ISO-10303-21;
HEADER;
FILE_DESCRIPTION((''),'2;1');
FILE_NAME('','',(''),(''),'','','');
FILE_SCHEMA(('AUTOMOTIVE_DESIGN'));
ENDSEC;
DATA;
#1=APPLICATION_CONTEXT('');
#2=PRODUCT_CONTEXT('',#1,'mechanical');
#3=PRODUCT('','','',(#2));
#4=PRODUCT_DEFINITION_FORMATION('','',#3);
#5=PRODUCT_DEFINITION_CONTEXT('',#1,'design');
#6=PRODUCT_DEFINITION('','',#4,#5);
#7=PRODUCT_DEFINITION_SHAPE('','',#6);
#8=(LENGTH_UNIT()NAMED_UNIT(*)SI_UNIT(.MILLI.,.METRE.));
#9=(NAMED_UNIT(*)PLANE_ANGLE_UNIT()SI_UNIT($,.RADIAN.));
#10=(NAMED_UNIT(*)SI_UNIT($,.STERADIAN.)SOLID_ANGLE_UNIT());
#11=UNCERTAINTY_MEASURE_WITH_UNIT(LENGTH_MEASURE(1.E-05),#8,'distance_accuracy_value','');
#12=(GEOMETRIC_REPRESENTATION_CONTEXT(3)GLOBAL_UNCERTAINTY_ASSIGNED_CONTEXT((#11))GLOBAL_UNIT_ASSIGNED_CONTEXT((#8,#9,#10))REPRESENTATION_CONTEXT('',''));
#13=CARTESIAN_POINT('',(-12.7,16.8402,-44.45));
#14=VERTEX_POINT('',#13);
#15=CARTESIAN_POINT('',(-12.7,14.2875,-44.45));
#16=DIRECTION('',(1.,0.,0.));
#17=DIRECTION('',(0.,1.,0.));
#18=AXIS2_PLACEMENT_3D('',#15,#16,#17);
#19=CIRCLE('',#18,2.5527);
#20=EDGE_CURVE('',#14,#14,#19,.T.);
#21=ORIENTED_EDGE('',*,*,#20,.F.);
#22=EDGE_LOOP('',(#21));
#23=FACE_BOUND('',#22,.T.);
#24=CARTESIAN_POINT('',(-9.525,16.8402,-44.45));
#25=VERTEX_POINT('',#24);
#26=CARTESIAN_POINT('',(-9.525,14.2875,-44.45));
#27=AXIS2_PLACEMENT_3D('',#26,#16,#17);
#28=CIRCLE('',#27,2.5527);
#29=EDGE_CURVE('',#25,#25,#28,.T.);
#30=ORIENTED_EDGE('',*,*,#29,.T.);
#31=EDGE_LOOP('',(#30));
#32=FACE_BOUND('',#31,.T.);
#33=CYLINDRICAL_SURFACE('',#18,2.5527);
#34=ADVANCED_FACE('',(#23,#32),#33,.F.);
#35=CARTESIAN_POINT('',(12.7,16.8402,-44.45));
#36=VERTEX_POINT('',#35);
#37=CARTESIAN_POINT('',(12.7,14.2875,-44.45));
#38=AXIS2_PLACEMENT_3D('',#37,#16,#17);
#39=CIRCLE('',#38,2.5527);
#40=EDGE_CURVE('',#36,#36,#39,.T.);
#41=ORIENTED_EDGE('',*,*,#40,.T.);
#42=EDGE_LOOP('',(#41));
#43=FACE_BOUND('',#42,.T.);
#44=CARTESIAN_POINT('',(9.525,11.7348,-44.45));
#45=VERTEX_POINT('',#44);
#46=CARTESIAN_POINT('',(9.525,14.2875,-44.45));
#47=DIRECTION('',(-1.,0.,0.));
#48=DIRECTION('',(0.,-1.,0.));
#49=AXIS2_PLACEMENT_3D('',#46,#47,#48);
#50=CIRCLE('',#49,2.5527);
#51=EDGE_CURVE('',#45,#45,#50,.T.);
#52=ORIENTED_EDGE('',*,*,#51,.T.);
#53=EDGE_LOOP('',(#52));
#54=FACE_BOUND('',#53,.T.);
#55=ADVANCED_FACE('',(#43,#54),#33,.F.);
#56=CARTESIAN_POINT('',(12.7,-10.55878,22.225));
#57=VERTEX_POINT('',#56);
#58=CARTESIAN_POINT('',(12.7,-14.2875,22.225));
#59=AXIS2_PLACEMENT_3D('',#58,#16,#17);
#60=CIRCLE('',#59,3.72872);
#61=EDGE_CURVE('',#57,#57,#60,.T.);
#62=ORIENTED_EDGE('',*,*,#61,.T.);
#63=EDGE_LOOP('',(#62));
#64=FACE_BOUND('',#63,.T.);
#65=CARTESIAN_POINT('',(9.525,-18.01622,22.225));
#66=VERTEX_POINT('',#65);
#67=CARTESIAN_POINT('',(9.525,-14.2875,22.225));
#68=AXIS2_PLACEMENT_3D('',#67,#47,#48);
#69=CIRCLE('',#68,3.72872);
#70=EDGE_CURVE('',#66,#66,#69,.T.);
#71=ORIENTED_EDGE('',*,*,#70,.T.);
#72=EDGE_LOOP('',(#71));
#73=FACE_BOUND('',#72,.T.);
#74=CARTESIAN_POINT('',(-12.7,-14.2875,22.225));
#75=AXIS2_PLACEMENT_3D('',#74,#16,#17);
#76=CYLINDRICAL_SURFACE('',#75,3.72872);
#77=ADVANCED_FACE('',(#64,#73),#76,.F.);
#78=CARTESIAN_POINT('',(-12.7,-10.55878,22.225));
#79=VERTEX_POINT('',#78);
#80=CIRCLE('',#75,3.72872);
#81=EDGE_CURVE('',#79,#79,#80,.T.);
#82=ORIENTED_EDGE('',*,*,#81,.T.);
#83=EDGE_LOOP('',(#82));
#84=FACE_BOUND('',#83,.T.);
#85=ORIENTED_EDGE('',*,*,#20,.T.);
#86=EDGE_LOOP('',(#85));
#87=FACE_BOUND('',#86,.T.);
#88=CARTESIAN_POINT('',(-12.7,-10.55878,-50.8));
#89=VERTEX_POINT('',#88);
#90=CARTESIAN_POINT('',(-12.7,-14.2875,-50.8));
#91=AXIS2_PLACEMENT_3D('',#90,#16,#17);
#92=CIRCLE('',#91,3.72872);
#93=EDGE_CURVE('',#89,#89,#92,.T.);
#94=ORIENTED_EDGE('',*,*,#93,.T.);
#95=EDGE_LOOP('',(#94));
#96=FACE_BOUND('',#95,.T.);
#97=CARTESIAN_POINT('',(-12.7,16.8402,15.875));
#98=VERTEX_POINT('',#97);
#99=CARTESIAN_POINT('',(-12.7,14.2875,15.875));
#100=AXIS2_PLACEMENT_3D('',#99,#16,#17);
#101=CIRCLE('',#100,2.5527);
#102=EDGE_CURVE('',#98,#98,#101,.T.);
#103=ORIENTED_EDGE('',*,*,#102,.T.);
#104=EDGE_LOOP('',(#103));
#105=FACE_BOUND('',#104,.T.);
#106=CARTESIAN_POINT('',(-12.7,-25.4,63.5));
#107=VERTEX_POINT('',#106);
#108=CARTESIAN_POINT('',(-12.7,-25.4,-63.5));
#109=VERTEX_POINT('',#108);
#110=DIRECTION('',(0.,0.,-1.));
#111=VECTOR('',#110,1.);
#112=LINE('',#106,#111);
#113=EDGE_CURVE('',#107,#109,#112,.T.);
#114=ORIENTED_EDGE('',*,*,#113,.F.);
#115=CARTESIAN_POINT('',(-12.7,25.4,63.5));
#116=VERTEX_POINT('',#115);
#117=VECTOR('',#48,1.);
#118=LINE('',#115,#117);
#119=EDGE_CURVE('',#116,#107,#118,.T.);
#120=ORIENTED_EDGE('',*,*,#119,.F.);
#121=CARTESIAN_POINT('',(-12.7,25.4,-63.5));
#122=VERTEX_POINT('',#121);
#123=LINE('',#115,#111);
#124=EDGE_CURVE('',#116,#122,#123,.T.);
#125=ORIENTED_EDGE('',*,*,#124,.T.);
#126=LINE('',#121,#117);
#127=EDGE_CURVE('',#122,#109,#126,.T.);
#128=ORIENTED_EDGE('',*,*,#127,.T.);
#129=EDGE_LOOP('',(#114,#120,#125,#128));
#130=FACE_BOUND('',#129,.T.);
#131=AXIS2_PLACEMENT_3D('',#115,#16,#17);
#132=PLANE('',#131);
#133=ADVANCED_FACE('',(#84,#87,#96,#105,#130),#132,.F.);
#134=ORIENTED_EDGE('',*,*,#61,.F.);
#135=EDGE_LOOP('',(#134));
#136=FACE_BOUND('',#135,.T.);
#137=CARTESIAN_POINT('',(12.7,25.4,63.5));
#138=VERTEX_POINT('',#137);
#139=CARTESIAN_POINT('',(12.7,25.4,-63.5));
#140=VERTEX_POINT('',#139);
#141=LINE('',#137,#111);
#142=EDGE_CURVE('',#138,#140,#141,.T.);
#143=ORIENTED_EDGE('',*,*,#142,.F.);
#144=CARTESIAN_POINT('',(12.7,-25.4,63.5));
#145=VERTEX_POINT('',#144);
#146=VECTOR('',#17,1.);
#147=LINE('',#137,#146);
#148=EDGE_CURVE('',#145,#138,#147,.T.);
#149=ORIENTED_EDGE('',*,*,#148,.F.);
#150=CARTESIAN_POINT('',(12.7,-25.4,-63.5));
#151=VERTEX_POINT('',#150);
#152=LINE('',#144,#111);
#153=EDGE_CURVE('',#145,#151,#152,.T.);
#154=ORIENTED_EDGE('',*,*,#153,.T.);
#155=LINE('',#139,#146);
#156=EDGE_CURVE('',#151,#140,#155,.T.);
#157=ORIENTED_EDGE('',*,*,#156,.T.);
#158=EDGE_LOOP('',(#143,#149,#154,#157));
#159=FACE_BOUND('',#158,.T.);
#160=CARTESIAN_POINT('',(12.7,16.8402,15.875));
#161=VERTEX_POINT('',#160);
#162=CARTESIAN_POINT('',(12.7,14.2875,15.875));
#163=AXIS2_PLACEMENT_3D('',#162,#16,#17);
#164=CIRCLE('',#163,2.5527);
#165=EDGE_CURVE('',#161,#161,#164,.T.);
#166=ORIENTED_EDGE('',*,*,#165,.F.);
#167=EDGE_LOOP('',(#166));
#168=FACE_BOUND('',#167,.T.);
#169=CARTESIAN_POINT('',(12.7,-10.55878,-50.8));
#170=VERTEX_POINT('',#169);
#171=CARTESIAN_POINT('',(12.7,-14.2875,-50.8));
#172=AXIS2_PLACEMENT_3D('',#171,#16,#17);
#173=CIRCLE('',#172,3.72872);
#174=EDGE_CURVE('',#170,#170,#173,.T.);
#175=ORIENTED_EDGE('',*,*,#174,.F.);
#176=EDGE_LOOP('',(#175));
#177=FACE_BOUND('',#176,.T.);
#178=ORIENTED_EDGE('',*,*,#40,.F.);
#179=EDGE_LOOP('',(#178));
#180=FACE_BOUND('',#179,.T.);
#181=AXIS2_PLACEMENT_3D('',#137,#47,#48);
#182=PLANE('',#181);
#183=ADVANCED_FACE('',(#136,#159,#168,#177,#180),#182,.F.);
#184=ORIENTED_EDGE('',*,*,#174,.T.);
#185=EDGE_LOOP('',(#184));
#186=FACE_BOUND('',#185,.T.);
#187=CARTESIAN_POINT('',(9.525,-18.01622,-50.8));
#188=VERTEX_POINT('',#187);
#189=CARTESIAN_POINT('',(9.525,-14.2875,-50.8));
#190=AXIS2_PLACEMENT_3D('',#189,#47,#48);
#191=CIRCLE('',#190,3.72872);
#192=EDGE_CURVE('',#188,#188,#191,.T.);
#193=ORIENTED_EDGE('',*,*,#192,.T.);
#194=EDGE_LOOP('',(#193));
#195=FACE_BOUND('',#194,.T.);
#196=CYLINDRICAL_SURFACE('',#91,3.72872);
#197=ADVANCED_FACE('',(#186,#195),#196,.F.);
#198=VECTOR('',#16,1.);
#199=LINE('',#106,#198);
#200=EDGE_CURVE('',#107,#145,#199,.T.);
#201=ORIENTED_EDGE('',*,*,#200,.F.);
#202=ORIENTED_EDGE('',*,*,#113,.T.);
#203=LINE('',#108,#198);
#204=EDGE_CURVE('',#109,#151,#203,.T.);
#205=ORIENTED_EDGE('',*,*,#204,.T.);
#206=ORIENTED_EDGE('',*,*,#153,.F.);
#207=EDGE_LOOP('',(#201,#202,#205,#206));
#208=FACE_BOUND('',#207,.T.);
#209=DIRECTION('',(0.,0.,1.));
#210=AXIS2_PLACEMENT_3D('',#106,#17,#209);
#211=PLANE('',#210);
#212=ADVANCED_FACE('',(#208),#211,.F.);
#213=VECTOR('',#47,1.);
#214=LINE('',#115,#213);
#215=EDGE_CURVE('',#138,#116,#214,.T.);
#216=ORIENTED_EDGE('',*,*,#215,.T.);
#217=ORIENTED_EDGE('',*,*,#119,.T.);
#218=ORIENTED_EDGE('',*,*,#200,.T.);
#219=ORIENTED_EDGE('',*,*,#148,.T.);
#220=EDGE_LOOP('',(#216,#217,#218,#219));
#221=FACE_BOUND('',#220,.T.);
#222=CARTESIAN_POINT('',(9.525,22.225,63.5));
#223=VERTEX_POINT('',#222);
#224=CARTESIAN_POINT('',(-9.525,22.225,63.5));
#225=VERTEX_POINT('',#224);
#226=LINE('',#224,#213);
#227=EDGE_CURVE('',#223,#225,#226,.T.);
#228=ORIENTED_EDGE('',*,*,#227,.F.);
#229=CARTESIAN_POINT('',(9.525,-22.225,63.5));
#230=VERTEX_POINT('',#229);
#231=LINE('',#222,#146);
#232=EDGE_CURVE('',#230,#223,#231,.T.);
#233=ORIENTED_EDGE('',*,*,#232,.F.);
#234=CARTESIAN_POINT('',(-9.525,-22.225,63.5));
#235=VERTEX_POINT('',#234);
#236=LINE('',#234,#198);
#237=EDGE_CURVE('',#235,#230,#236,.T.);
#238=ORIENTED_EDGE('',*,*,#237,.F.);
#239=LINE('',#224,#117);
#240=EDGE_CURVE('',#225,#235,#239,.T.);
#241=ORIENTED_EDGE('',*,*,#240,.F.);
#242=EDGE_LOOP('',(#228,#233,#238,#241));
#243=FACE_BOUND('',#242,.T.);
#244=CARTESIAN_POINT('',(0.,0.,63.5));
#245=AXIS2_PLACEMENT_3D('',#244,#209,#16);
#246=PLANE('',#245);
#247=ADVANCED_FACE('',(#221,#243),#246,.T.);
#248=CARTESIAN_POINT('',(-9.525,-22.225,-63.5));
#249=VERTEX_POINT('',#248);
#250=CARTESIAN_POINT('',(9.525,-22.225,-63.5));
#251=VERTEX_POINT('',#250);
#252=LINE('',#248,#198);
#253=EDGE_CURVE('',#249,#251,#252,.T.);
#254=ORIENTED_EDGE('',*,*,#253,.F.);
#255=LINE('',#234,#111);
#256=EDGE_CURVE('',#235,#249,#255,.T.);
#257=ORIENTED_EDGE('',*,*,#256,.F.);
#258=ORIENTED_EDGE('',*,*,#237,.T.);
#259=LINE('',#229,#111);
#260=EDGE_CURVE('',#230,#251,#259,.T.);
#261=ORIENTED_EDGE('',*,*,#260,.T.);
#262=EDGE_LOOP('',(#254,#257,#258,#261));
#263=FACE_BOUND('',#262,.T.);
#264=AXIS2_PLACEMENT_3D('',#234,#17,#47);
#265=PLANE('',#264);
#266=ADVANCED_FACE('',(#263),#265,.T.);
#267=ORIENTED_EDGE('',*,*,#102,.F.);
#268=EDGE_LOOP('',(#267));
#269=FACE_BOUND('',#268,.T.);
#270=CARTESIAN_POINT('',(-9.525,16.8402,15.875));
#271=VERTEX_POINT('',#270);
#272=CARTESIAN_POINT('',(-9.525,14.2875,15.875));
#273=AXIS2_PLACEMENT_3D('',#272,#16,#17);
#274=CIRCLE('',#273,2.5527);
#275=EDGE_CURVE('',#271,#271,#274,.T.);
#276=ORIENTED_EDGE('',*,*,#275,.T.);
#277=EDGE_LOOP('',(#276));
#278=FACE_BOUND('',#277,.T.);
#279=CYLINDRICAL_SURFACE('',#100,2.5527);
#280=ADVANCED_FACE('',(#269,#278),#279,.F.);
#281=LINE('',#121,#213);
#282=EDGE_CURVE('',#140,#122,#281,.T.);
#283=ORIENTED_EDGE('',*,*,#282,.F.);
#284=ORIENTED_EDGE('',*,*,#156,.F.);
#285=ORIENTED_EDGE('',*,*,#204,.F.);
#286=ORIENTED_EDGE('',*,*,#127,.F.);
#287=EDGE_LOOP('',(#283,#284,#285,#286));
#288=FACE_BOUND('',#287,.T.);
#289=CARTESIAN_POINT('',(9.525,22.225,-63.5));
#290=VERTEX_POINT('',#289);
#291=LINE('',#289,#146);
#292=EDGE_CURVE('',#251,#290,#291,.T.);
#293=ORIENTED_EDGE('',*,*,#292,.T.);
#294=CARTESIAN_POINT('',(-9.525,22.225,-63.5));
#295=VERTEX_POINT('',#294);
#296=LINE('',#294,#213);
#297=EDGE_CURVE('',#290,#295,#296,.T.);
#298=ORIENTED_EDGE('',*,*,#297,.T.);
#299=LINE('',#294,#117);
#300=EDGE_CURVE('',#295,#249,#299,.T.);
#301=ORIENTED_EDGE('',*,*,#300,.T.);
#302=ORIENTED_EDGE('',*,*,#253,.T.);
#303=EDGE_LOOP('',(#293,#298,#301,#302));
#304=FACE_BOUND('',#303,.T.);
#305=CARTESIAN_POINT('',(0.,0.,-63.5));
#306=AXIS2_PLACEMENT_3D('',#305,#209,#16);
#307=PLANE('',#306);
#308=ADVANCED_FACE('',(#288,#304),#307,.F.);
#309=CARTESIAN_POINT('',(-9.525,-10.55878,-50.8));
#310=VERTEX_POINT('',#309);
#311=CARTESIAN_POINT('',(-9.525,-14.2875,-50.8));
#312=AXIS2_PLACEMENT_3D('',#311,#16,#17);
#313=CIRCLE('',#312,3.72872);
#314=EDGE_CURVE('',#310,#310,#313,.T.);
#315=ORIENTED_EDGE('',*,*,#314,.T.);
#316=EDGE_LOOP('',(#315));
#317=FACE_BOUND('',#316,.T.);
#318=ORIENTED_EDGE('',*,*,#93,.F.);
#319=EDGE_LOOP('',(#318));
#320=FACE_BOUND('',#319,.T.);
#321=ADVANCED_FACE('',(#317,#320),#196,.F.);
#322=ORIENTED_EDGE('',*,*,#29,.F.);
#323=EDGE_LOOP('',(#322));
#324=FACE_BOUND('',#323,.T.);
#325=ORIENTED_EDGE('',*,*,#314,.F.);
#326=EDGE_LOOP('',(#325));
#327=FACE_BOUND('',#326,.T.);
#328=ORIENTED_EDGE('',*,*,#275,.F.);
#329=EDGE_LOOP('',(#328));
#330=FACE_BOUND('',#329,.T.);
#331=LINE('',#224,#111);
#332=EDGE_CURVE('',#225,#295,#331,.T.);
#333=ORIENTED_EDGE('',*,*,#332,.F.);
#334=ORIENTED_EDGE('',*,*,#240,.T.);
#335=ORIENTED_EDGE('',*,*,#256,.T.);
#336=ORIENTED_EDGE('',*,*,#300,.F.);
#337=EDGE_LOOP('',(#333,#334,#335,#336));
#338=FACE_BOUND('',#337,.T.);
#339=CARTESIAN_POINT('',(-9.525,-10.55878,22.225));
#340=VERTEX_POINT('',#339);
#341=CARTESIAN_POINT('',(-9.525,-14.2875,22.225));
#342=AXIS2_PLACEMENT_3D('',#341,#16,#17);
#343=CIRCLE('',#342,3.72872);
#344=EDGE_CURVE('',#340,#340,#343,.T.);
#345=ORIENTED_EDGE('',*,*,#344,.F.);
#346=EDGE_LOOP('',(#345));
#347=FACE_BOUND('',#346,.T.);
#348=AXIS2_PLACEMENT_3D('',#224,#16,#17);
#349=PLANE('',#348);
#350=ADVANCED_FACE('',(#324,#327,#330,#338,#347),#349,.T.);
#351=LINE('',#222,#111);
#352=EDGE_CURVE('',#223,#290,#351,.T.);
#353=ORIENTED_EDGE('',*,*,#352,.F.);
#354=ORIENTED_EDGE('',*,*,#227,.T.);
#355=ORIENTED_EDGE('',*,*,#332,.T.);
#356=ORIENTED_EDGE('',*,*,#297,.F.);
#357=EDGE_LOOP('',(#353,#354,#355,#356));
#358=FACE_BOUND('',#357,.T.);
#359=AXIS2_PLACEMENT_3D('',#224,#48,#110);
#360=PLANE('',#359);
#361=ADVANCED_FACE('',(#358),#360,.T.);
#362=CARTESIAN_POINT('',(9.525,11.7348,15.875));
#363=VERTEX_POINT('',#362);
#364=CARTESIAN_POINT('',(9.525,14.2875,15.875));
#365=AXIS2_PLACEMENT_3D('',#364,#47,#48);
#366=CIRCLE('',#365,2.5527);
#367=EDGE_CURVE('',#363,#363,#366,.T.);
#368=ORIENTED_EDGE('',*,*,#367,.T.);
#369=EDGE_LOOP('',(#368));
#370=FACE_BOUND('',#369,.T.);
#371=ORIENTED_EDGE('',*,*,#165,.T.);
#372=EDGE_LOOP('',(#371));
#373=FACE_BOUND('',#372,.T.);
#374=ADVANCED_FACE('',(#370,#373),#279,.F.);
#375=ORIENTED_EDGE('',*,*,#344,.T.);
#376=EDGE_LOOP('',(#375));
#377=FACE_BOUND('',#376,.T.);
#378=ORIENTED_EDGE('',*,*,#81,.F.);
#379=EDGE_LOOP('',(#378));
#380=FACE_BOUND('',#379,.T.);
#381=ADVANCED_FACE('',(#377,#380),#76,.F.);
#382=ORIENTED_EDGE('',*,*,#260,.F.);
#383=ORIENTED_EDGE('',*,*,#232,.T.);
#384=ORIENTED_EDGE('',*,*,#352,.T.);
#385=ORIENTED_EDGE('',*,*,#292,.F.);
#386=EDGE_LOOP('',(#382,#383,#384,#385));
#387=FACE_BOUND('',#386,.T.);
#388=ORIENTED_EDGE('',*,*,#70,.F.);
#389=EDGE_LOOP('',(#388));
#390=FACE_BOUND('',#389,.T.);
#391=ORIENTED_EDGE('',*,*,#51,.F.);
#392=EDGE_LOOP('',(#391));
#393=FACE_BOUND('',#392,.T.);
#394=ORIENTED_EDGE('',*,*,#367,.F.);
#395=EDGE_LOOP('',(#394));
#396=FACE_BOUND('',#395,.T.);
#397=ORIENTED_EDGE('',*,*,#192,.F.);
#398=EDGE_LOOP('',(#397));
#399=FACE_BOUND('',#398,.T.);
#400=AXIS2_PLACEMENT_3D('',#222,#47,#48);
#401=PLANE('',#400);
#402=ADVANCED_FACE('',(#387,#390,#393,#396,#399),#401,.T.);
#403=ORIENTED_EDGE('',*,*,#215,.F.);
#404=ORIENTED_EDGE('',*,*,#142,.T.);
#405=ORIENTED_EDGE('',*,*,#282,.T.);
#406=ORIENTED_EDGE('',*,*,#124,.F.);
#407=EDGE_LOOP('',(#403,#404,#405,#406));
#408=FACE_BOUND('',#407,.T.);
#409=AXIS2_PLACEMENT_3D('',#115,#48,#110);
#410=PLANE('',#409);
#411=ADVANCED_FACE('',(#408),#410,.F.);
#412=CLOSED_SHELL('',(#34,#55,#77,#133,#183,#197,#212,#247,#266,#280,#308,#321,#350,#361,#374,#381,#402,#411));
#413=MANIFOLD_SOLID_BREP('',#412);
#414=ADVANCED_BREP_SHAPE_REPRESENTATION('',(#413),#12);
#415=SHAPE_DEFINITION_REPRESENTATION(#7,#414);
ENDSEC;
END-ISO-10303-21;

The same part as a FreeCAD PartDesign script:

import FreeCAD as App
import Part
import Sketcher
from FreeCAD import Vector
Q = App.Units.Quantity


def add_polygon(sketch, points):
    """Adds a closed chain of lines whose ends are joined by coincident constraints."""
    first, n = sketch.GeometryCount, len(points)
    for a, b in zip(points, points[1:] + points[:1]):
        sketch.addGeometry(Part.LineSegment(App.Vector(*a, 0), App.Vector(*b, 0)), False)
    for i in range(n):
        sketch.addConstraint(Sketcher.Constraint("Coincident", first + i, 2, first + (i + 1) % n, 1))

doc = App.newDocument("Part")
body = doc.addObject("PartDesign::Body", "Body")

# Sketch on XY plane
sketch1 = body.newObject("Sketcher::SketchObject", "Sketch")
sketch1.AttachmentSupport = (doc.getObject("XY_Plane"), [""])
sketch1.MapMode = "FlatFace"
add_polygon(sketch1, [(-13, 25), (-13, -25), (13, -25), (13, 25)])  # lines 0-3
add_polygon(sketch1, [(10, -22), (-10, -22), (-10, 22), (10, 22)])  # lines 4-7
sketch1.addConstraint([
    Sketcher.Constraint("Vertical", 0),
    Sketcher.Constraint("Horizontal", 1),
    Sketcher.Constraint("Vertical", 2),
    Sketcher.Constraint("Horizontal", 3),
    Sketcher.Constraint("Horizontal", 4),
    Sketcher.Constraint("Vertical", 5),
    Sketcher.Constraint("Horizontal", 6),
    Sketcher.Constraint("Vertical", 7),
    Sketcher.Constraint("Symmetric", 0, 2, 2, 2, -1, 1),
    Sketcher.Constraint("Symmetric", 4, 2, 6, 2, -1, 1),
    Sketcher.Constraint("DistanceX", 1, 1, 1, 2, Q("1 in")),
    Sketcher.Constraint("DistanceY", 0, 2, 0, 1, Q("2 in")),
    Sketcher.Constraint("DistanceX", 4, 2, 4, 1, Q("0.75 in")),
    Sketcher.Constraint("DistanceY", 5, 1, 5, 2, Q("1.75 in")),
])
pad1 = body.newObject("PartDesign::Pad", "Pad")
pad1.Profile = sketch1
pad1.Length = Q("5 in")
pad1.Midplane = True

# Sketch on YZ plane
sketch2 = body.newObject("Sketcher::SketchObject", "Sketch001")
sketch2.AttachmentSupport = (doc.getObject("YZ_Plane"), [""])
sketch2.MapMode = "FlatFace"
sketch2.AttachmentOffset = App.Placement(Vector(0, 0, 0.5 * 25.4), App.Rotation())
sketch2.addGeometry([
    Part.Circle(Vector(-14.3, -50.8, 0), Vector(0, 0, 1), 3.7),
    Part.Circle(Vector(-14.3, 22.2, 0), Vector(0, 0, 1), 3.7),
    Part.Circle(Vector(14.3, -44.5, 0), Vector(0, 0, 1), 2.6),
    Part.Circle(Vector(14.3, 15.9, 0), Vector(0, 0, 1), 2.6),
], False)
sketch2.addConstraint([
    Sketcher.Constraint("Equal", 0, 1),
    Sketcher.Constraint("Equal", 2, 3),
    Sketcher.Constraint("Vertical", 0, 3, 1, 3),
    Sketcher.Constraint("Vertical", 2, 3, 3, 3),
    Sketcher.Constraint("Diameter", 2, Q("0.201 in")),
    Sketcher.Constraint("DistanceY", 0, 3, -1, 1, Q("2 in")),
    Sketcher.Constraint("Diameter", 0, Q("0.2936 in")),
    Sketcher.Constraint("DistanceY", 2, 3, -1, 1, Q("1.75 in")),
    Sketcher.Constraint("DistanceY", 3, 3, 1, 3, Q("0.25 in")),
    Sketcher.Constraint("DistanceX", 0, 3, -1, 1, Q("0.5625 in")),
    Sketcher.Constraint("DistanceY", -1, 1, 1, 3, Q("0.875 in")),
    Sketcher.Constraint("DistanceX", -1, 1, 2, 3, Q("0.5625 in")),
])
pocket1 = body.newObject("PartDesign::Pocket", "Pocket")
pocket1.Profile = sketch2
pocket1.Type = "ThroughAll"

doc.recompute()
